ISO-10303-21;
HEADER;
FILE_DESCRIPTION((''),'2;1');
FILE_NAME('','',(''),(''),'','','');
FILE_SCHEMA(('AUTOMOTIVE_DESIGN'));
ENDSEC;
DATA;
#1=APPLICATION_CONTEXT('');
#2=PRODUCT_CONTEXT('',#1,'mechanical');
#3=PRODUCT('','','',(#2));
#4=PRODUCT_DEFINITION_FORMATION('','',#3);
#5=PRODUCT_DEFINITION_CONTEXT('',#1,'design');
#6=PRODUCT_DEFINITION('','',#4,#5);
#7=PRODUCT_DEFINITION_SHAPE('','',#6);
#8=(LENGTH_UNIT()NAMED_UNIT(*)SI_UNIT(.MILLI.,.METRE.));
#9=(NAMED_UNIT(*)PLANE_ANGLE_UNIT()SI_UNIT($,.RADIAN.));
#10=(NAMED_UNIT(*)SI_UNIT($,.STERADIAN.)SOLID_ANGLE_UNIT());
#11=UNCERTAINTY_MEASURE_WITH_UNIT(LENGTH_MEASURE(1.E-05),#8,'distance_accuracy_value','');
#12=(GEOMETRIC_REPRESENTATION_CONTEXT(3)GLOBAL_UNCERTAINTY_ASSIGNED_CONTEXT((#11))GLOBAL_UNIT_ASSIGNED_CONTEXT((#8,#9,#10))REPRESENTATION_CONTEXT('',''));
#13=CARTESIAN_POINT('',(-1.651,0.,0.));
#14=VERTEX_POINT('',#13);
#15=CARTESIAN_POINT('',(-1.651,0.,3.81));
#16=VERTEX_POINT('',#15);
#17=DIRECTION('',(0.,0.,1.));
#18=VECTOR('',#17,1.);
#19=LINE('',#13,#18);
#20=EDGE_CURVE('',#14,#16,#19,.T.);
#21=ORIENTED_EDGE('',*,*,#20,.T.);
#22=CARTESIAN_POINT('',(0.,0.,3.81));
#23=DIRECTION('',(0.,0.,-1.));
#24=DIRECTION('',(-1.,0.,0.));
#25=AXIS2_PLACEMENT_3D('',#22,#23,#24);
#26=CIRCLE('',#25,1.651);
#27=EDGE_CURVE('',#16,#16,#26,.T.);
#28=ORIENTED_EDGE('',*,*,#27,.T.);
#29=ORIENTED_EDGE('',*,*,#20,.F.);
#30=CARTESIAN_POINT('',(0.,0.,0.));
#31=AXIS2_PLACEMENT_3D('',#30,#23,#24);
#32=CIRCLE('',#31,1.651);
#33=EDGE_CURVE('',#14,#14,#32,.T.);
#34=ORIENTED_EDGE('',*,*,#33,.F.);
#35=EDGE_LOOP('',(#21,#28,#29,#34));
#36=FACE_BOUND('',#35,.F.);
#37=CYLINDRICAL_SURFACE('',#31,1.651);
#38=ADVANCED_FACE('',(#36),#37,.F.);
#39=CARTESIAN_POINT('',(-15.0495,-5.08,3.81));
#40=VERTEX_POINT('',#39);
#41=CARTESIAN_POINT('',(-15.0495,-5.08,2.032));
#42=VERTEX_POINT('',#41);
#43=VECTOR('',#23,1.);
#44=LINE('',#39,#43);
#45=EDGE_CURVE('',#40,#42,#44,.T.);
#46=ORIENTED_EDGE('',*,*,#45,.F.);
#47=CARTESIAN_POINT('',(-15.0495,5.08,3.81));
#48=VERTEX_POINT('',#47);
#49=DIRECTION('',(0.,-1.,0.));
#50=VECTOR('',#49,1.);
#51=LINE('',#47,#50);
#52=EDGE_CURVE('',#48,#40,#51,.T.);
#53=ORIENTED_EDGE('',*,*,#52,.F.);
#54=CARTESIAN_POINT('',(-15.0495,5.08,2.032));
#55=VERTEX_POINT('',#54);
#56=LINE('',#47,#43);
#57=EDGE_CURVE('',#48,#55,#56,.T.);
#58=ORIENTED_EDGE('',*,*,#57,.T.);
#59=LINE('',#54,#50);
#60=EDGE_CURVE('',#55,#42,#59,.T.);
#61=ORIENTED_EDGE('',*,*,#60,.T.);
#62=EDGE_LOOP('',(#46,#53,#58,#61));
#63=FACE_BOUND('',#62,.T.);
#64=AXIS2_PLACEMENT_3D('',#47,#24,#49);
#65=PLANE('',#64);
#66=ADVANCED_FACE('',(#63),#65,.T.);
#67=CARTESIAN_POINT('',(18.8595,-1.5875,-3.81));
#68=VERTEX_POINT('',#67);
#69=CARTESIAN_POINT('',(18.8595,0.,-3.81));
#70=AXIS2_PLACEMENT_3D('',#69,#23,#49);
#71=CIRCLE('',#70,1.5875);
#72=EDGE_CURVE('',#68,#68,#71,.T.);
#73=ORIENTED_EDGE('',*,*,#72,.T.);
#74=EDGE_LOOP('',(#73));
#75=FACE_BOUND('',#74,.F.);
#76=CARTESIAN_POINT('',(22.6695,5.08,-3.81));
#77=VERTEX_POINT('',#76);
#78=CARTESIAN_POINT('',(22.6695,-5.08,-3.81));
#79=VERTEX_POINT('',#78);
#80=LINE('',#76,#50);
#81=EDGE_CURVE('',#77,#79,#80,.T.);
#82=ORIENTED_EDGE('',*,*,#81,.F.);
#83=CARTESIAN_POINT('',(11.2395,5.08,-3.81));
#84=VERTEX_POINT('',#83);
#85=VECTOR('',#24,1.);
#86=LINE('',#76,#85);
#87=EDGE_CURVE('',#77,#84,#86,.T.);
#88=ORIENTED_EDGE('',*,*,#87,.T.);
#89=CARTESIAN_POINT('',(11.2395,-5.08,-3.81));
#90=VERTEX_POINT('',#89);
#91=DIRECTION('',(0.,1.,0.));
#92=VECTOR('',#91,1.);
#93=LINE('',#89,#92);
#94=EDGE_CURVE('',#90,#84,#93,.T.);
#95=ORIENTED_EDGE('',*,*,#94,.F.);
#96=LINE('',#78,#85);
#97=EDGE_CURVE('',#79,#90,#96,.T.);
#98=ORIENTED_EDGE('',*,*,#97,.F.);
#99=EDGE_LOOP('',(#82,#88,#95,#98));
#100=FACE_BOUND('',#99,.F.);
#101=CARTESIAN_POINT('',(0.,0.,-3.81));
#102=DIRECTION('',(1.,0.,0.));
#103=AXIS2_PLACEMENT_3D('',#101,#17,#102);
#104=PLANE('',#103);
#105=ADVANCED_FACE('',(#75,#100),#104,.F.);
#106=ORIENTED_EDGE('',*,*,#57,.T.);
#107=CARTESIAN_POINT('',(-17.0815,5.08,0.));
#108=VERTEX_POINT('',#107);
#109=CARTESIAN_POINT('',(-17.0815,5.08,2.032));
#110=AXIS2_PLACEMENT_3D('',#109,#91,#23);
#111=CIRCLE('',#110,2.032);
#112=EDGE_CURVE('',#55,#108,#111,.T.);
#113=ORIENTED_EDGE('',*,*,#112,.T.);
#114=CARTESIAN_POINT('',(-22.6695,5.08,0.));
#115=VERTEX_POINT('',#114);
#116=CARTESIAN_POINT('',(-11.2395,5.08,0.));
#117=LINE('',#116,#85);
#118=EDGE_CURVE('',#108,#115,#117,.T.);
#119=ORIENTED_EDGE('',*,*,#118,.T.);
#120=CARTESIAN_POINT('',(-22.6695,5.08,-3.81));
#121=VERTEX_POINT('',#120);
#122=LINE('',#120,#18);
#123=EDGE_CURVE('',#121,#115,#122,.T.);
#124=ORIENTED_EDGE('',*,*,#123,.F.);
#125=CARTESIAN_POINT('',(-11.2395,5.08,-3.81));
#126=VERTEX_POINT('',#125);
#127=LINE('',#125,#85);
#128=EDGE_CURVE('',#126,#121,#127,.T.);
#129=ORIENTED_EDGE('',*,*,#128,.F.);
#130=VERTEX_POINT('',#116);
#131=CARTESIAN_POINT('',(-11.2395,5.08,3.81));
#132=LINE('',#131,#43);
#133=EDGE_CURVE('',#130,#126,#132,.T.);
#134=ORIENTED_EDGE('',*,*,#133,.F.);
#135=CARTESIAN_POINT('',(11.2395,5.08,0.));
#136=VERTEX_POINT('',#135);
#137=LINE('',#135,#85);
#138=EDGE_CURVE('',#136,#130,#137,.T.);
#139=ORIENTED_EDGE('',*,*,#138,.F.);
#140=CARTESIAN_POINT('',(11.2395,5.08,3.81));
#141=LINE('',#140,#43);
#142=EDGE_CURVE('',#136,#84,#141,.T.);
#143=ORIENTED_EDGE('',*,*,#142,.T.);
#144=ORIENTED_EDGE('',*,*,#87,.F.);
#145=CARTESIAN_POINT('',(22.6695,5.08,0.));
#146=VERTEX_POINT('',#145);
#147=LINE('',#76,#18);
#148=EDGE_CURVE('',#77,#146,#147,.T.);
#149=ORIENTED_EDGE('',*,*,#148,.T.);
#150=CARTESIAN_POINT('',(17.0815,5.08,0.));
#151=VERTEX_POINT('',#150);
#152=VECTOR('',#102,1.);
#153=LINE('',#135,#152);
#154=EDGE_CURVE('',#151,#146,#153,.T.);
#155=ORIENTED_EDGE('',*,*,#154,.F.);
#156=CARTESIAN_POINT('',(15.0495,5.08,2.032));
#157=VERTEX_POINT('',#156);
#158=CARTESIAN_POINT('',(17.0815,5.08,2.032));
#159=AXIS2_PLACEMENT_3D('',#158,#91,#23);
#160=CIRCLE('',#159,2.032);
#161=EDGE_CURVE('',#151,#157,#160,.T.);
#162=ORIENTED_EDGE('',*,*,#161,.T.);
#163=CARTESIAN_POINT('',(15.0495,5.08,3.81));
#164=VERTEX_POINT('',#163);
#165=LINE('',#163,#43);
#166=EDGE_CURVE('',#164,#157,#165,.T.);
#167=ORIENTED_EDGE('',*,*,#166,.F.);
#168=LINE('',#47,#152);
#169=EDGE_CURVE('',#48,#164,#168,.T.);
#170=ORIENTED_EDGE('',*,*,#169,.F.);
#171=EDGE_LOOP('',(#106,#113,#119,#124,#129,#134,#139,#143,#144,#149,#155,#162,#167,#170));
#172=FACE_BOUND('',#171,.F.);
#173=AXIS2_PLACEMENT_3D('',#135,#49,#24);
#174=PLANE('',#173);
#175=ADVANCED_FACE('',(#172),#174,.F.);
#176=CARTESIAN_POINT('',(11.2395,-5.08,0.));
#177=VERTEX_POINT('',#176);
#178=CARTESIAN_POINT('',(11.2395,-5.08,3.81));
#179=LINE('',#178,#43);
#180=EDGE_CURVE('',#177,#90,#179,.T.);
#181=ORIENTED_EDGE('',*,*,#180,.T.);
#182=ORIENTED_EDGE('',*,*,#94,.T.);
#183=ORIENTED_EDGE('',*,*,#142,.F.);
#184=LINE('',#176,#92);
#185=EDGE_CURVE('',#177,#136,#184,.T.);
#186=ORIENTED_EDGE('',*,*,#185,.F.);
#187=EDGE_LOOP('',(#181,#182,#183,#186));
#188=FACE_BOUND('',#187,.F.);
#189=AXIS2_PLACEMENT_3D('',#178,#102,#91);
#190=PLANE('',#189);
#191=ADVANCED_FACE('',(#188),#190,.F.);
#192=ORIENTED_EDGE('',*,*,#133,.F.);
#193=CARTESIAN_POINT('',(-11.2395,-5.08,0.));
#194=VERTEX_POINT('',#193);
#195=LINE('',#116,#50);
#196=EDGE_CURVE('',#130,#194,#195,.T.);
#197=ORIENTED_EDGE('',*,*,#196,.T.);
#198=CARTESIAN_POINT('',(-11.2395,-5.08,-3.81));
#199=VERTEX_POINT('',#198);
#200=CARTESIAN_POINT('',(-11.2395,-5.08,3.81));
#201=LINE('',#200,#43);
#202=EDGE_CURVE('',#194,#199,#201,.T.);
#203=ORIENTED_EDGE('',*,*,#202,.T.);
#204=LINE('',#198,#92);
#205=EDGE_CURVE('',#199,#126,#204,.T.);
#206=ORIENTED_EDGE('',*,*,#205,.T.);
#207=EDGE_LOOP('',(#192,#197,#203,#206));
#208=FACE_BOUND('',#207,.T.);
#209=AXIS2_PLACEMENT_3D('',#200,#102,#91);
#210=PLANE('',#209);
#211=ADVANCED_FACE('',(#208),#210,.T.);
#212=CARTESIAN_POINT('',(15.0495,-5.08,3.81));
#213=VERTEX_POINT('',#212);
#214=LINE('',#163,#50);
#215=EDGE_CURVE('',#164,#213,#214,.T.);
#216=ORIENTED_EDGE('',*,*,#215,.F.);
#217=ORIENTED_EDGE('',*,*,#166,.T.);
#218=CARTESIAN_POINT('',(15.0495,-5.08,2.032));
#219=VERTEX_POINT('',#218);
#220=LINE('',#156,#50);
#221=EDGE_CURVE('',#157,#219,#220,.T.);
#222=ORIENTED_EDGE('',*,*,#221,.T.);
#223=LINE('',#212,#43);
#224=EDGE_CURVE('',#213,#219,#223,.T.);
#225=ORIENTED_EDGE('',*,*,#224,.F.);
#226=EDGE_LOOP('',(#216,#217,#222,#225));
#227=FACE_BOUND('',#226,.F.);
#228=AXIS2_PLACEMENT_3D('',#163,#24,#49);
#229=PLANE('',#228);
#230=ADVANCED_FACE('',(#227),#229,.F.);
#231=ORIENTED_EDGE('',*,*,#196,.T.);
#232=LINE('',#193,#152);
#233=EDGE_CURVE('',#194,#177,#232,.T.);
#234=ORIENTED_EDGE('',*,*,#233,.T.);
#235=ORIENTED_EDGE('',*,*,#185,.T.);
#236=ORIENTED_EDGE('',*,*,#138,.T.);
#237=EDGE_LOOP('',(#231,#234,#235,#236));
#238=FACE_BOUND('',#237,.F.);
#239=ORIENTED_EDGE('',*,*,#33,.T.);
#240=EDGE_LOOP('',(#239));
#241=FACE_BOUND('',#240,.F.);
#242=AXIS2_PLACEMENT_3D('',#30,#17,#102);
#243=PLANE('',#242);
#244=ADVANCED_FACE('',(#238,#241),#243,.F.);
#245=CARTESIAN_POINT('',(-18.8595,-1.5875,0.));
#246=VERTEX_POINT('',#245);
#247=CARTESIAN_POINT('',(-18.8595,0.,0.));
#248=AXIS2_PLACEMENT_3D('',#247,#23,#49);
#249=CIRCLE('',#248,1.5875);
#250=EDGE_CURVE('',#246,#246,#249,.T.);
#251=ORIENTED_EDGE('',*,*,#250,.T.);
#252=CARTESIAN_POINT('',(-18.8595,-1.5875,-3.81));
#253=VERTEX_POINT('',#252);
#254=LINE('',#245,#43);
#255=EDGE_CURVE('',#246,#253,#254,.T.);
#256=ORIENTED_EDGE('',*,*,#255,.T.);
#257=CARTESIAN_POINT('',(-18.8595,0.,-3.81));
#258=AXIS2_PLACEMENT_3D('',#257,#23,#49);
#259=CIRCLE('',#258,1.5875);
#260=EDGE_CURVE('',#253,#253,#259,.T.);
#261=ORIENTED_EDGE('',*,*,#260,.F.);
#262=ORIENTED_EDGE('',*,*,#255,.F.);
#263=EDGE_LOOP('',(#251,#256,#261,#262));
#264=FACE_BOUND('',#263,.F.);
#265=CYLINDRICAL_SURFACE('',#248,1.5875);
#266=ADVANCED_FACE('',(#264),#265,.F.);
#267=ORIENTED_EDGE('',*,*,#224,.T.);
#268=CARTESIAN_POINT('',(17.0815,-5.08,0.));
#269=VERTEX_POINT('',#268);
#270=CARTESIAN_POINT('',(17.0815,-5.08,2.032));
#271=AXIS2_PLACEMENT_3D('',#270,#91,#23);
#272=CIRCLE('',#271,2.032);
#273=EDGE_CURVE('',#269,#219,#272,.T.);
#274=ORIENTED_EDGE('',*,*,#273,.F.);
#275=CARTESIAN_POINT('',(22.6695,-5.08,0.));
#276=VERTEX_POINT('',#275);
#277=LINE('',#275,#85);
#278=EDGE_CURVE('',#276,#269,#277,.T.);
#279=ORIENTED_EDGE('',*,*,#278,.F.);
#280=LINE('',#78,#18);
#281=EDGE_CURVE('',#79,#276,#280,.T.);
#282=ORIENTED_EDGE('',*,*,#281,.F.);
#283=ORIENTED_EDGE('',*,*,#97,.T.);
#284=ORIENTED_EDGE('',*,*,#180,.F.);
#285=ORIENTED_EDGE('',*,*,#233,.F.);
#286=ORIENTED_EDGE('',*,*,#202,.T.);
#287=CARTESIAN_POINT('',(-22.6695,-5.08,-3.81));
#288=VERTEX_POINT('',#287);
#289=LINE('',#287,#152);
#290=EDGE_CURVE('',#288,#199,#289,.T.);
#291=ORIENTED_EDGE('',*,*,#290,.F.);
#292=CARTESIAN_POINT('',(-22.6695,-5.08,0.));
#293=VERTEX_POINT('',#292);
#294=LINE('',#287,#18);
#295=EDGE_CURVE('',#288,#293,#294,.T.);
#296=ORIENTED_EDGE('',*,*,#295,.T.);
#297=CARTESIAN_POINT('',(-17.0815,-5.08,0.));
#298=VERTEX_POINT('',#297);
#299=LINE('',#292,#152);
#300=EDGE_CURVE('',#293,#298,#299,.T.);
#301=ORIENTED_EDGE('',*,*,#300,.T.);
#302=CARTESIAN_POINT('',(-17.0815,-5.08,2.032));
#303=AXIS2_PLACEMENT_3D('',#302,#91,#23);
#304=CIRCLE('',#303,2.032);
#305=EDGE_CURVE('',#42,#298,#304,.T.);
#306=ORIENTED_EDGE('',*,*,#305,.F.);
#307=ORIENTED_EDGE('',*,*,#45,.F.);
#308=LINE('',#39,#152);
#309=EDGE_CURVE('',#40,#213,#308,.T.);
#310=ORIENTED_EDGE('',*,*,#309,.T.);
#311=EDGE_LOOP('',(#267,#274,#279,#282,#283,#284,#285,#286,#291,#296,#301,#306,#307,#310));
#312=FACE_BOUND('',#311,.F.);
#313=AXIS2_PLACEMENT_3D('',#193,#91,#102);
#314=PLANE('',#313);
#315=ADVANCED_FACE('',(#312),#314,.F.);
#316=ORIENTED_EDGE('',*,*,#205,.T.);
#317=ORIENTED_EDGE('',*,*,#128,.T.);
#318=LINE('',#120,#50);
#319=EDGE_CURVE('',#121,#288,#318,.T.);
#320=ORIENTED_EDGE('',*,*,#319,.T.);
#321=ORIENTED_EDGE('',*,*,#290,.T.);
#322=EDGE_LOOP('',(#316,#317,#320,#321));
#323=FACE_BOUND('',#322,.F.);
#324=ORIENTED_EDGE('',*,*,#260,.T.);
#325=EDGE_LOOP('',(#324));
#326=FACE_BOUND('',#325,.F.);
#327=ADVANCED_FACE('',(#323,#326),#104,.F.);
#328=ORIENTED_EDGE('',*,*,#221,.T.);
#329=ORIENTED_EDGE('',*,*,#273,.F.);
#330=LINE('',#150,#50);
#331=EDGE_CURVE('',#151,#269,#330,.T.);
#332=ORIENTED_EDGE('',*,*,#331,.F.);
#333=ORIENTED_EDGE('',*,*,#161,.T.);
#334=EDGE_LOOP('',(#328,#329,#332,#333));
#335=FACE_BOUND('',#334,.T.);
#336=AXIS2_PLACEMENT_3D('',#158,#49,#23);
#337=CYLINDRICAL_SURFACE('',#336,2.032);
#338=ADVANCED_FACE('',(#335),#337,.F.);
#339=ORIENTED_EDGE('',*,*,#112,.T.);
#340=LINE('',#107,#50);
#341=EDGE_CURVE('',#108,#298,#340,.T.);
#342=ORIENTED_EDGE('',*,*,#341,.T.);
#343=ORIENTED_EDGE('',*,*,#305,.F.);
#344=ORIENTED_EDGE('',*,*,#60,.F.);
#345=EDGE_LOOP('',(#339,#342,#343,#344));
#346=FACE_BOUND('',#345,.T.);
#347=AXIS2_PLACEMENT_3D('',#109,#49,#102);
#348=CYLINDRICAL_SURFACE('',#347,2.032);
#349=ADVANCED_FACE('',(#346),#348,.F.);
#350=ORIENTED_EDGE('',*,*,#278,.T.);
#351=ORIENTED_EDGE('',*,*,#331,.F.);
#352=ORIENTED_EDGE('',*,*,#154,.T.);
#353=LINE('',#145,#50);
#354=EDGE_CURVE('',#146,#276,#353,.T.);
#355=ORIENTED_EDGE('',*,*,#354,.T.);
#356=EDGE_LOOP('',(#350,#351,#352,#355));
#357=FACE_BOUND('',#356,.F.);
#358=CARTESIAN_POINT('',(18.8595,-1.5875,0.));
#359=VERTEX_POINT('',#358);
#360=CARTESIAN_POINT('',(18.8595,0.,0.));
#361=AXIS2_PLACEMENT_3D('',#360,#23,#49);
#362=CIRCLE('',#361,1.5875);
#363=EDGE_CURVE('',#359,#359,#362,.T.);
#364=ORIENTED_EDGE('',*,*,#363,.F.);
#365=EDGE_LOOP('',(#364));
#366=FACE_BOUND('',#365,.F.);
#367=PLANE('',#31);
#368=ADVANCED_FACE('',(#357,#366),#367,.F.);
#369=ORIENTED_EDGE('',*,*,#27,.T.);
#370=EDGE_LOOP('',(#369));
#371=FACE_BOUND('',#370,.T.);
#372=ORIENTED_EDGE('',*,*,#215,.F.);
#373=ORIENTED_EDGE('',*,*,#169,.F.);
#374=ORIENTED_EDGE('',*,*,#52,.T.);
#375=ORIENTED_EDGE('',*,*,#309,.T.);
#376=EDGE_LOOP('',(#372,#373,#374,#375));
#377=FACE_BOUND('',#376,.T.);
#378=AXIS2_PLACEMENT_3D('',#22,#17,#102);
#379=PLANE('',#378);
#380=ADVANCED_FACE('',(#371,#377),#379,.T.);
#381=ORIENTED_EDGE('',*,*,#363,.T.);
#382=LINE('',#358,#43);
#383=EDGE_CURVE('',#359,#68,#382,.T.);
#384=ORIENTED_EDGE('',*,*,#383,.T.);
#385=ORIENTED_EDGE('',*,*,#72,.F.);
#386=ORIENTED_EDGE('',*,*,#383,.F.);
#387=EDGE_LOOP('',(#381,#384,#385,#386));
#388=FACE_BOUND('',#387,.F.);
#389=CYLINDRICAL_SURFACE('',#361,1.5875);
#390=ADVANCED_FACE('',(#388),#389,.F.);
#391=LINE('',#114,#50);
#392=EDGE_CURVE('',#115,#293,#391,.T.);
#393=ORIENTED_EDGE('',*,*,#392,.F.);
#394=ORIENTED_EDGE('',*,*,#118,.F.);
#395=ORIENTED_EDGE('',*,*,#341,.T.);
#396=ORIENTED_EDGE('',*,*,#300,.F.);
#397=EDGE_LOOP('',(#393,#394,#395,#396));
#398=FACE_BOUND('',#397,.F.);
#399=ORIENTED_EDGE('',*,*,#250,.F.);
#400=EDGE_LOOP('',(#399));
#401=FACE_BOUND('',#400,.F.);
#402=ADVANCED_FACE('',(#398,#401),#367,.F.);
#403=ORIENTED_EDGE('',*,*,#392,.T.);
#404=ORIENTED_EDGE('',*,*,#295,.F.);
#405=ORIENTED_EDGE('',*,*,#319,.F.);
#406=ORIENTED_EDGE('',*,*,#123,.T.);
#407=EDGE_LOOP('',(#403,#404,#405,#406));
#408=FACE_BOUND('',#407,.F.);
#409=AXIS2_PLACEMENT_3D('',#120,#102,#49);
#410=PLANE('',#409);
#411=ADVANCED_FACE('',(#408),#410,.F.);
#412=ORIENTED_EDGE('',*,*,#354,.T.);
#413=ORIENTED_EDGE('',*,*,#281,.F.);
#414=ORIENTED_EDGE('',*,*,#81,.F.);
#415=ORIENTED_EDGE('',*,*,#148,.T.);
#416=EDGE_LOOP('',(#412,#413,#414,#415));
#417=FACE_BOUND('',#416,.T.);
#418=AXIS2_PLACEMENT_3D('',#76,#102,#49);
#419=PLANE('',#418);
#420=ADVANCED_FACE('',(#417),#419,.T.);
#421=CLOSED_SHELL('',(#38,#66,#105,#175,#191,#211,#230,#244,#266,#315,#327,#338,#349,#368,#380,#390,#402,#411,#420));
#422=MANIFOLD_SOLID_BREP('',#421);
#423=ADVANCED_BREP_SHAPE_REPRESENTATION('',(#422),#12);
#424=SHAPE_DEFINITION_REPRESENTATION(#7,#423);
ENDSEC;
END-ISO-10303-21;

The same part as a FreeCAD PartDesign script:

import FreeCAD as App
import Part
import Sketcher

V = App.Vector
Q = App.Units.Quantity


def edges_at(feature, points):
    """Names of the edges that pass closest to the given points."""
    edges = feature.Shape.Edges
    near = lambda p: min(range(len(edges)), key=lambda i: edges[i].distToShape(Part.Vertex(*p))[0])
    return sorted({f"Edge{near(p) + 1}" for p in points})


def add_polygon(sketch, points):
    """Adds a closed chain of lines whose ends are joined by coincident constraints."""
    first, n = sketch.GeometryCount, len(points)
    for a, b in zip(points, points[1:] + points[:1]):
        sketch.addGeometry(Part.LineSegment(App.Vector(*a, 0), App.Vector(*b, 0)), False)
    for i in range(n):
        sketch.addConstraint(Sketcher.Constraint("Coincident", first + i, 2, first + (i + 1) % n, 1))

doc = App.newDocument("Part")
body = doc.addObject("PartDesign::Body", "Body")

# Sketch on XY plane
sketch1 = body.newObject("Sketcher::SketchObject", "Sketch")
sketch1.AttachmentSupport = (doc.getObject("XY_Plane"), [""])
sketch1.MapMode = "FlatFace"
add_polygon(sketch1, [(-11, 5), (-11, -5), (11, -5), (11, 5)])  # lines 0-3
sketch1.addConstraint(Sketcher.Constraint("Vertical", 0))
sketch1.addConstraint(Sketcher.Constraint("Horizontal", 1))
sketch1.addConstraint(Sketcher.Constraint("Vertical", 2))
sketch1.addConstraint(Sketcher.Constraint("Horizontal", 3))
sketch1.addConstraint(Sketcher.Constraint("Symmetric", 0, 2, 2, 2, -1, 1))
sketch1.addConstraint(Sketcher.Constraint("DistanceY", 0, 2, 0, 1, Q("0.4 in")))
sketch1.addConstraint(Sketcher.Constraint("DistanceX", 1, 1, 1, 2, Q("0.885 in")))
pad1 = body.newObject("PartDesign::Pad", "Pad")
pad1.Profile = sketch1
pad1.Length = Q("0.15 in")

# Sketch on XY plane
sketch2 = body.newObject("Sketcher::SketchObject", "Sketch001")
sketch2.AttachmentSupport = (doc.getObject("XY_Plane"), [""])
sketch2.MapMode = "FlatFace"
sketch2.AttachmentOffset = App.Placement(V(0, 0, 0.15 * 25.4), App.Rotation())
add_polygon(sketch2, [(-11.2, -5.1), (-11.2, 5.1), (-15, 5.1), (-15, -5.1)])  # lines 0-3
add_polygon(sketch2, [(15, 5.1), (11.2, 5.1), (11.2, -5.1), (15, -5.1)])  # lines 4-7
sketch2.addConstraint(Sketcher.Constraint("Vertical", 0))
sketch2.addConstraint(Sketcher.Constraint("Horizontal", 1))
sketch2.addConstraint(Sketcher.Constraint("Vertical", 2))
sketch2.addConstraint(Sketcher.Constraint("Horizontal", 3))
sketch2.addConstraint(Sketcher.Constraint("Horizontal", 4))
sketch2.addConstraint(Sketcher.Constraint("Vertical", 5))
sketch2.addConstraint(Sketcher.Constraint("Horizontal", 6))
sketch2.addConstraint(Sketcher.Constraint("Vertical", 7))
sketch2.addConstraint(Sketcher.Constraint("Symmetric", 3, 2, 4, 2, -1, 1))
sketch2.addConstraint(Sketcher.Constraint("Symmetric", 1, 2, 6, 2, -1, 1))
sketch2.addConstraint(Sketcher.Constraint("Horizontal", 1, 2, 4, 2))
sketch2.addConstraint(Sketcher.Constraint("DistanceY", 0, 1, 0, 2, Q("0.4 in")))
sketch2.addConstraint(Sketcher.Constraint("DistanceX", 1, 2, 1, 1, Q("0.15 in")))
sketch2.addConstraint(Sketcher.Constraint("DistanceX", 0, 2, 4, 2, Q("0.885 in")))
pad2 = body.newObject("PartDesign::Pad", "Pad001")
pad2.Profile = sketch2
pad2.Length = Q("0.3 in")
pad2.Reversed = True

# Sketch on XY plane
sketch3 = body.newObject("Sketcher::SketchObject", "Sketch002")
sketch3.AttachmentSupport = (doc.getObject("XY_Plane"), [""])
sketch3.MapMode = "FlatFace"
sketch3.AttachmentOffset = App.Placement(V(0, 0, -0.15 * 25.4), App.Rotation())
add_polygon(sketch3, [(23, -5), (11, -5), (11, 5), (23, 5)])  # lines 0-3
add_polygon(sketch3, [(-23, 5), (-11, 5), (-11, -5), (-23, -5)])  # lines 4-7
sketch3.addConstraint(Sketcher.Constraint("Horizontal", 0))
sketch3.addConstraint(Sketcher.Constraint("Vertical", 1))
sketch3.addConstraint(Sketcher.Constraint("Horizontal", 2))
sketch3.addConstraint(Sketcher.Constraint("Vertical", 3))
sketch3.addConstraint(Sketcher.Constraint("Horizontal", 4))
sketch3.addConstraint(Sketcher.Constraint("Vertical", 5))
sketch3.addConstraint(Sketcher.Constraint("Horizontal", 6))
sketch3.addConstraint(Sketcher.Constraint("Vertical", 7))
sketch3.addConstraint(Sketcher.Constraint("Symmetric", 0, 2, 4, 2, -1, 1))
sketch3.addConstraint(Sketcher.Constraint("Symmetric", 2, 2, 6, 2, -1, 1))
sketch3.addConstraint(Sketcher.Constraint("Horizontal", 2, 2, 4, 2))
sketch3.addConstraint(Sketcher.Constraint("DistanceY", 1, 1, 1, 2, Q("0.4 in")))
sketch3.addConstraint(Sketcher.Constraint("DistanceX", 0, 2, 0, 1, Q("0.45 in")))
sketch3.addConstraint(Sketcher.Constraint("DistanceX", 4, 2, 1, 2, Q("0.885 in")))
pad3 = body.newObject("PartDesign::Pad", "Pad002")
pad3.Profile = sketch3
pad3.Length = Q("0.15 in")

# Sketch on XY plane
sketch4 = body.newObject("Sketcher::SketchObject", "Sketch003")
sketch4.AttachmentSupport = (doc.getObject("XY_Plane"), [""])
sketch4.MapMode = "FlatFace"
sketch4.addGeometry(Part.Circle(V(0, 0, 0), V(0, 0, 1), 1.7), False)
sketch4.addConstraint(Sketcher.Constraint("Coincident", 0, 3, -1, 1))
sketch4.addConstraint(Sketcher.Constraint("Diameter", 0, Q("0.13 in")))
pocket1 = body.newObject("PartDesign::Pocket", "Pocket")
pocket1.Profile = sketch4
pocket1.Type = "ThroughAll"
pocket1.Reversed = True

# Sketch on XY plane
sketch5 = body.newObject("Sketcher::SketchObject", "Sketch004")
sketch5.AttachmentSupport = (doc.getObject("XY_Plane"), [""])
sketch5.MapMode = "FlatFace"
sketch5.addGeometry(Part.Circle(V(-18.9, 0, 0), V(0, 0, 1), 1.6), False)
sketch5.addGeometry(Part.Circle(V(18.9, 0, 0), V(0, 0, 1), 1.6), False)
sketch5.addConstraint(Sketcher.Constraint("Equal", 0, 1))
sketch5.addConstraint(Sketcher.Constraint("Symmetric", 0, 3, 1, 3, -1, 1))
sketch5.addConstraint(Sketcher.Constraint("PointOnObject", 0, 3, -1))
sketch5.addConstraint(Sketcher.Constraint("Diameter", 0, Q("0.125 in")))
sketch5.addConstraint(Sketcher.Constraint("DistanceX", 0, 3, 1, 3, Q("1.485 in")))
doc.recompute()
hole = body.newObject("PartDesign::Hole", "Hole")
hole.Profile = sketch5
hole.ThreadType = "None"
hole.Diameter = Q("0.125 in")
hole.DepthType = "ThroughAll"
doc.recompute()

fillet = body.newObject("PartDesign::Fillet", "Fillet")
fillet.Base = (hole, edges_at(hole, [(15.05, 0, 0), (-15.05, 0, 0)]))
fillet.Radius = Q("0.08 in")

doc.recompute()
